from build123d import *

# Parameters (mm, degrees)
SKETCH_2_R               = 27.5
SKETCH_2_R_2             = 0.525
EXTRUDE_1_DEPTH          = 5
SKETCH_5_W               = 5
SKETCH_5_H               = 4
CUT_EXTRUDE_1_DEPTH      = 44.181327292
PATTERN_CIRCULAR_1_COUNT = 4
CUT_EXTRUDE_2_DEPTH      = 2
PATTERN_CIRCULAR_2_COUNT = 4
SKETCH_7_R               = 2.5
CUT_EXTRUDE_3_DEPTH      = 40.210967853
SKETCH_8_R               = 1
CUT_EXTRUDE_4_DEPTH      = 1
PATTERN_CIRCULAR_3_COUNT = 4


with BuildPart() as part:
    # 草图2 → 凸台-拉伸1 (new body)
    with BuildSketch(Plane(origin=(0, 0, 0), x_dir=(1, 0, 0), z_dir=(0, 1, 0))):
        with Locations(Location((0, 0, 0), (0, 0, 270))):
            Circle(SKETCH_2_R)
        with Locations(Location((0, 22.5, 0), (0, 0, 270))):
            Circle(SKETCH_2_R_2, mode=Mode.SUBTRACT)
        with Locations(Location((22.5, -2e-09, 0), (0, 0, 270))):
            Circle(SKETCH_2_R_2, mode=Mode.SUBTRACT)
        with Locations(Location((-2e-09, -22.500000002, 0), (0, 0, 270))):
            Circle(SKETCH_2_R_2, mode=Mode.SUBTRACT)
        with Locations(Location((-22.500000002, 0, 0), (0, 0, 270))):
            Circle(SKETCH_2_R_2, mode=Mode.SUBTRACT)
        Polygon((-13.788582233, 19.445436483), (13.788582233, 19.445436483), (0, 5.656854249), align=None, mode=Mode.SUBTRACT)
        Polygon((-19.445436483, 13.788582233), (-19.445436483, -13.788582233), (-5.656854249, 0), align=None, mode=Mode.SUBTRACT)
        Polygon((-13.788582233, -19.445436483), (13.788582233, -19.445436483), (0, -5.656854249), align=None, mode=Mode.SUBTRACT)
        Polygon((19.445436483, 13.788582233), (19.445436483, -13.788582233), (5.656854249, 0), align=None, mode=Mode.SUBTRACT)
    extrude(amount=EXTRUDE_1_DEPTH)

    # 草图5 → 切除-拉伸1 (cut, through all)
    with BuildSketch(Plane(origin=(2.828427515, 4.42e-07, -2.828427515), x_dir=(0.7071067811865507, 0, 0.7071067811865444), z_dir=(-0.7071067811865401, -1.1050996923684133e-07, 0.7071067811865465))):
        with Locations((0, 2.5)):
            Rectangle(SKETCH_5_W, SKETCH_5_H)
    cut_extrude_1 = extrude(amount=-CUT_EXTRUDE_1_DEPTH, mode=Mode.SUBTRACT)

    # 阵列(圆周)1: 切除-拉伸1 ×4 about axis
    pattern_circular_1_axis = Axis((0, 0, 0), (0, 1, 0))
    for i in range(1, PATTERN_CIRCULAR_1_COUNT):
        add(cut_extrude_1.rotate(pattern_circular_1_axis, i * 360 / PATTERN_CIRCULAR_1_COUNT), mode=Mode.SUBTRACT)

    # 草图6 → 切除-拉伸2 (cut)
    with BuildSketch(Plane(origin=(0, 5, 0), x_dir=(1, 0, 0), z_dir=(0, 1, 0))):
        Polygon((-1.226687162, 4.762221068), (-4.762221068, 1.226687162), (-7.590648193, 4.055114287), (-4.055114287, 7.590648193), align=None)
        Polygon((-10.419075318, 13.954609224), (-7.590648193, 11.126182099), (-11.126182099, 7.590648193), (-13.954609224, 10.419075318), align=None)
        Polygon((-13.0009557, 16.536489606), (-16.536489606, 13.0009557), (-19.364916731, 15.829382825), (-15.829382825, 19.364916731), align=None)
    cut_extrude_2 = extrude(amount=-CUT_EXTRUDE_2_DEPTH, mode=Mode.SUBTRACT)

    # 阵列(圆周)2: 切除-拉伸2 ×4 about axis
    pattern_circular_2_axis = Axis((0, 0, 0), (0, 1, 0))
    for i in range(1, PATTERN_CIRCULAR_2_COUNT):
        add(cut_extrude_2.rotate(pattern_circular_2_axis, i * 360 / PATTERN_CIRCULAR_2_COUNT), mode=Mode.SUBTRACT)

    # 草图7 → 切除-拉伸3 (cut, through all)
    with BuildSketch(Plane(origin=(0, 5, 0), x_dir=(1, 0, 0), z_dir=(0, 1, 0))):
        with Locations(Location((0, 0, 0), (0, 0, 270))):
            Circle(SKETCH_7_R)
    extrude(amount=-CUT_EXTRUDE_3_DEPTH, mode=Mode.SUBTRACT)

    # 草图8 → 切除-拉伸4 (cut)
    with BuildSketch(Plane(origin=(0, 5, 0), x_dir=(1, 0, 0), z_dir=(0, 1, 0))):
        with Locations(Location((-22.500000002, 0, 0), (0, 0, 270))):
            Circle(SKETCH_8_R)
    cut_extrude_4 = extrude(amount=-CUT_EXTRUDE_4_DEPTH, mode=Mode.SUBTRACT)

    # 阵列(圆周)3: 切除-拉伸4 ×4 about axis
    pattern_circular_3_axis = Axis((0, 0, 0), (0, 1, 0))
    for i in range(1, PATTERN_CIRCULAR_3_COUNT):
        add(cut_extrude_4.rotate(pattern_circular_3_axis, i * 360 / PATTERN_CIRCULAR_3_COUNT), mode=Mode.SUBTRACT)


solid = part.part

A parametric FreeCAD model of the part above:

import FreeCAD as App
import Part
import Sketcher
Q = App.Units.Quantity


def add_polygon(sketch, points):
    """Adds a closed chain of lines whose ends are joined by coincident constraints."""
    first, n = sketch.GeometryCount, len(points)
    for a, b in zip(points, points[1:] + points[:1]):
        sketch.addGeometry(Part.LineSegment(App.Vector(*a, 0), App.Vector(*b, 0)), False)
    for i in range(n):
        sketch.addConstraint(Sketcher.Constraint("Coincident", first + i, 2, first + (i + 1) % n, 1))

doc = App.newDocument("Part")
params = doc.addObject("Spreadsheet::Sheet", "Params")
for row, (alias, value) in enumerate([
    ("sketch1_diameter", "55 mm"),
    ("sketch1_diameter2", "1.05 mm"),
    ("sketch1_length", "19.5 mm"),
    ("pad1_length", "5 mm"),
    ("sketch2_width", "5 mm"),
    ("sketch2_height", "4 mm"),
    ("sketch3_length", "5 mm"),
    ("sketch3_length2", "4 mm"),
    ("pocket2_length", "2 mm"),
    ("sketch4_diameter", "5 mm"),
    ("sketch5_diameter", "2 mm"),
    ("pocket4_length", "1 mm"),
], start=1):
    params.set(f"A{row}", alias)
    params.set(f"B{row}", "=" + value)
    params.setAlias(f"B{row}", alias)

body = doc.addObject("PartDesign::Body", "Body")

sketch1 = body.newObject("Sketcher::SketchObject", "Sketch")
sketch1.AttachmentSupport = (doc.getObject("XZ_Plane"), [""])
sketch1.MapMode = "FlatFace"
sketch1.addGeometry(Part.Circle(App.Vector(0, 0, 0), App.Vector(0, 0, 1), 27.5), False)
sketch1.addGeometry(Part.Circle(App.Vector(-22.5, 0, 0), App.Vector(0, 0, 1), 0.525), False)
add_polygon(sketch1, [(-19.445436, 13.788582), (-19.445436, -13.788582), (-5.656854, 0)])
sketch1.addGeometry(Part.Circle(App.Vector(0, 22.5, 0), App.Vector(0, 0, 1), 0.525), False)
sketch1.addGeometry(Part.Circle(App.Vector(0, -22.5, 0), App.Vector(0, 0, 1), 0.525), False)
add_polygon(sketch1, [(0, -5.656854), (-13.788582, -19.445436), (13.788582, -19.445436)])
add_polygon(sketch1, [(5.656854, 0), (19.445436, -13.788582), (19.445436, 13.788582)])
add_polygon(sketch1, [(13.788582, 19.445436), (-13.788582, 19.445436), (0, 5.656854)])
sketch1.addGeometry(Part.Circle(App.Vector(22.5, 0, 0), App.Vector(0, 0, 1), 0.525), False)
sketch1.addConstraint([
    Sketcher.Constraint("Vertical", 2),
    Sketcher.Constraint("Horizontal", 8),
    Sketcher.Constraint("Vertical", 11),
    Sketcher.Constraint("Horizontal", 13),
    Sketcher.Constraint("Coincident", 0, 3, -1, 1),
    Sketcher.Constraint("Equal", 1, 5),
    Sketcher.Constraint("Equal", 5, 6),
    Sketcher.Constraint("Equal", 6, 16),
    Sketcher.Constraint("Symmetric", 5, 3, 6, 3, -1, 1),
    Sketcher.Constraint("Symmetric", 1, 3, 16, 3, -1, 1),
    Sketcher.Constraint("Symmetric", 4, 2, 10, 2, -1, 1),
    Sketcher.Constraint("Symmetric", 3, 2, 12, 2, -1, 1),
    Sketcher.Constraint("Symmetric", 8, 2, 13, 2, -1, 1),
    Sketcher.Constraint("Symmetric", 9, 2, 14, 2, -1, 1),
    Sketcher.Constraint("PointOnObject", 1, 3, -1),
    Sketcher.Constraint("PointOnObject", 5, 3, -2),
    Sketcher.Constraint("PointOnObject", 3, 2, -1),
    Sketcher.Constraint("PointOnObject", 9, 2, -2),
    Sketcher.Constraint("Perpendicular", 3, 4),
    Sketcher.Constraint("Perpendicular", 4, 7),
    Sketcher.Constraint("Perpendicular", 7, 9),
    Sketcher.Constraint("Perpendicular", 10, 12),
    Sketcher.Constraint("Perpendicular", 14, 15),
    Sketcher.Constraint("Horizontal", 2, 2, 10, 2),
    Sketcher.Constraint("Equal", 13, 2),
    Sketcher.Constraint("Diameter", 0, Q("55 mm")),
    Sketcher.Constraint("Diameter", 1, Q("1.05 mm")),
    Sketcher.Constraint("DistanceY", 6, 3, 5, 3, Q("45 mm")),
    Sketcher.Constraint("DistanceX", 1, 3, 16, 3, Q("45 mm")),
    Sketcher.Constraint("Distance", 3, Q("19.5 mm")),
    Sketcher.Constraint("DistanceX", 3, 2, 12, 2, Q("11.313708 mm")),
    Sketcher.Constraint("DistanceY", 9, 2, 14, 2, Q("11.313708 mm")),
])
sketch1.setExpression("Constraints[37]", "Params.sketch1_diameter")
sketch1.setExpression("Constraints[38]", "Params.sketch1_diameter2")
sketch1.setExpression("Constraints[41]", "Params.sketch1_length")
pad1 = body.newObject("PartDesign::Pad", "Pad")
pad1.Profile = sketch1
pad1.setExpression("Length", "Params.pad1_length")
pad1.Reversed = True

sketch2 = body.newObject("Sketcher::SketchObject", "Sketch001")
sketch2.Placement = App.Placement(App.Vector(2.828428, 0, -2.828428), App.Rotation(App.Vector(0.707106781, 0, 0.707106781), App.Vector(-0.000000078, 0.999999999, 0.000000078), App.Vector(-0.707106781, -0.000000111, 0.707106781), "ZXY"))
add_polygon(sketch2, [(-2.5, 4.5), (-2.5, 0.5), (2.5, 0.5), (2.5, 4.5)])
sketch2.addConstraint([
    Sketcher.Constraint("Vertical", 0),
    Sketcher.Constraint("Horizontal", 1),
    Sketcher.Constraint("Vertical", 2),
    Sketcher.Constraint("Horizontal", 3),
    Sketcher.Constraint("DistanceX", 1, 1, 1, 2, Q("5 mm")),
    Sketcher.Constraint("DistanceY", 0, 2, 0, 1, Q("4 mm")),
    Sketcher.Constraint("DistanceX", 0, 2, -1, 1, Q("2.5 mm")),
    Sketcher.Constraint("DistanceY", -1, 1, 0, 2, Q("0.5 mm")),
])
sketch2.setExpression("Constraints[8]", "Params.sketch2_width")
sketch2.setExpression("Constraints[9]", "Params.sketch2_height")
pocket1 = body.newObject("PartDesign::Pocket", "Pocket")
pocket1.Profile = sketch2
pocket1.Type = "ThroughAll"
doc.recompute()

polarpattern = body.newObject("PartDesign::PolarPattern", "PolarPattern")
polarpattern.Originals = [pocket1]
polarpattern.Axis = (doc.getObject("Y_Axis"), [""])
polarpattern.Angle = 360
polarpattern.Occurrences = 4
body.Tip = polarpattern

sketch3 = body.newObject("Sketcher::SketchObject", "Sketch002")
sketch3.AttachmentSupport = (doc.getObject("XZ_Plane"), [""])
sketch3.MapMode = "FlatFace"
sketch3.AttachmentOffset = App.Placement(App.Vector(0, 0, -5), App.Rotation())
add_polygon(sketch3, [(-4.762221, -1.226687), (-1.226687, -4.762221), (-4.055114, -7.590648), (-7.590648, -4.055114)])
add_polygon(sketch3, [(-7.590648, -11.126182), (-10.419075, -13.954609), (-13.954609, -10.419075), (-11.126182, -7.590648)])
add_polygon(sketch3, [(-16.53649, -13.000956), (-13.000956, -16.53649), (-15.829383, -19.364917), (-19.364917, -15.829383)])
sketch3.addConstraint([
    Sketcher.Constraint("Perpendicular", 0, 1),
    Sketcher.Constraint("Perpendicular", 1, 2),
    Sketcher.Constraint("Perpendicular", 2, 3),
    Sketcher.Constraint("Parallel", 3, 4),
    Sketcher.Constraint("Perpendicular", 4, 5),
    Sketcher.Constraint("Perpendicular", 5, 6),
    Sketcher.Constraint("Perpendicular", 6, 7),
    Sketcher.Constraint("Parallel", 7, 8),
    Sketcher.Constraint("Perpendicular", 8, 9),
    Sketcher.Constraint("Perpendicular", 9, 10),
    Sketcher.Constraint("Perpendicular", 10, 11),
    Sketcher.Constraint("Horizontal", 1, 2, 6, 2),
    Sketcher.Constraint("Vertical", 2, 2, 7, 2),
    Sketcher.Constraint("Equal", 3, 4),
    Sketcher.Constraint("Equal", 2, 5),
    Sketcher.Constraint("Equal", 7, 8),
    Sketcher.Constraint("Equal", 6, 9),
    Sketcher.Constraint("Angle", 0, Q("-45 deg")),
    Sketcher.Constraint("Distance", 0, Q("5 mm")),
    Sketcher.Constraint("Distance", 1, Q("4 mm")),
    Sketcher.Constraint("DistanceX", 9, 2, 6, 2, Q("4.703201 mm")),
    Sketcher.Constraint("DistanceY", 0, 2, -1, 1, Q("4.762221 mm")),
    Sketcher.Constraint("DistanceX", 2, 2, -1, 1, Q("7.590648 mm")),
    Sketcher.Constraint("DistanceY", 8, 2, -1, 1, Q("16.53649 mm")),
])
sketch3.setExpression("Constraints[30]", "Params.sketch3_length")
sketch3.setExpression("Constraints[31]", "Params.sketch3_length2")
pocket2 = body.newObject("PartDesign::Pocket", "Pocket001")
pocket2.Profile = sketch3
pocket2.setExpression("Length", "Params.pocket2_length")
pocket2.Reversed = True
doc.recompute()

polarpattern2 = body.newObject("PartDesign::PolarPattern", "PolarPattern001")
polarpattern2.Originals = [pocket2]
polarpattern2.Axis = (doc.getObject("Y_Axis"), [""])
polarpattern2.Angle = 360
polarpattern2.Occurrences = 4
body.Tip = polarpattern2

sketch4 = body.newObject("Sketcher::SketchObject", "Sketch003")
sketch4.AttachmentSupport = (doc.getObject("XZ_Plane"), [""])
sketch4.MapMode = "FlatFace"
sketch4.AttachmentOffset = App.Placement(App.Vector(0, 0, -5), App.Rotation())
sketch4.addGeometry(Part.Circle(App.Vector(0, 0, 0), App.Vector(0, 0, 1), 2.5), False)
sketch4.addConstraint([
    Sketcher.Constraint("Coincident", 0, 3, -1, 1),
    Sketcher.Constraint("Diameter", 0, Q("5 mm")),
])
sketch4.setExpression("Constraints[1]", "Params.sketch4_diameter")
pocket3 = body.newObject("PartDesign::Pocket", "Pocket002")
pocket3.Profile = sketch4
pocket3.Type = "ThroughAll"
pocket3.Reversed = True

sketch5 = body.newObject("Sketcher::SketchObject", "Sketch004")
sketch5.AttachmentSupport = (doc.getObject("XZ_Plane"), [""])
sketch5.MapMode = "FlatFace"
sketch5.AttachmentOffset = App.Placement(App.Vector(0, 0, -5), App.Rotation())
sketch5.addGeometry(Part.Circle(App.Vector(-22.5, 0, 0), App.Vector(0, 0, 1), 1), False)
sketch5.addConstraint([
    Sketcher.Constraint("PointOnObject", 0, 3, -1),
    Sketcher.Constraint("Diameter", 0, Q("2 mm")),
    Sketcher.Constraint("DistanceX", 0, 3, -1, 1, Q("22.5 mm")),
])
sketch5.setExpression("Constraints[1]", "Params.sketch5_diameter")
pocket4 = body.newObject("PartDesign::Pocket", "Pocket003")
pocket4.Profile = sketch5
pocket4.setExpression("Length", "Params.pocket4_length")
pocket4.Reversed = True
doc.recompute()

polarpattern3 = body.newObject("PartDesign::PolarPattern", "PolarPattern002")
polarpattern3.Originals = [pocket4]
polarpattern3.Axis = (doc.getObject("Y_Axis"), [""])
polarpattern3.Angle = 360
polarpattern3.Occurrences = 4
body.Tip = polarpattern3

doc.recompute()
